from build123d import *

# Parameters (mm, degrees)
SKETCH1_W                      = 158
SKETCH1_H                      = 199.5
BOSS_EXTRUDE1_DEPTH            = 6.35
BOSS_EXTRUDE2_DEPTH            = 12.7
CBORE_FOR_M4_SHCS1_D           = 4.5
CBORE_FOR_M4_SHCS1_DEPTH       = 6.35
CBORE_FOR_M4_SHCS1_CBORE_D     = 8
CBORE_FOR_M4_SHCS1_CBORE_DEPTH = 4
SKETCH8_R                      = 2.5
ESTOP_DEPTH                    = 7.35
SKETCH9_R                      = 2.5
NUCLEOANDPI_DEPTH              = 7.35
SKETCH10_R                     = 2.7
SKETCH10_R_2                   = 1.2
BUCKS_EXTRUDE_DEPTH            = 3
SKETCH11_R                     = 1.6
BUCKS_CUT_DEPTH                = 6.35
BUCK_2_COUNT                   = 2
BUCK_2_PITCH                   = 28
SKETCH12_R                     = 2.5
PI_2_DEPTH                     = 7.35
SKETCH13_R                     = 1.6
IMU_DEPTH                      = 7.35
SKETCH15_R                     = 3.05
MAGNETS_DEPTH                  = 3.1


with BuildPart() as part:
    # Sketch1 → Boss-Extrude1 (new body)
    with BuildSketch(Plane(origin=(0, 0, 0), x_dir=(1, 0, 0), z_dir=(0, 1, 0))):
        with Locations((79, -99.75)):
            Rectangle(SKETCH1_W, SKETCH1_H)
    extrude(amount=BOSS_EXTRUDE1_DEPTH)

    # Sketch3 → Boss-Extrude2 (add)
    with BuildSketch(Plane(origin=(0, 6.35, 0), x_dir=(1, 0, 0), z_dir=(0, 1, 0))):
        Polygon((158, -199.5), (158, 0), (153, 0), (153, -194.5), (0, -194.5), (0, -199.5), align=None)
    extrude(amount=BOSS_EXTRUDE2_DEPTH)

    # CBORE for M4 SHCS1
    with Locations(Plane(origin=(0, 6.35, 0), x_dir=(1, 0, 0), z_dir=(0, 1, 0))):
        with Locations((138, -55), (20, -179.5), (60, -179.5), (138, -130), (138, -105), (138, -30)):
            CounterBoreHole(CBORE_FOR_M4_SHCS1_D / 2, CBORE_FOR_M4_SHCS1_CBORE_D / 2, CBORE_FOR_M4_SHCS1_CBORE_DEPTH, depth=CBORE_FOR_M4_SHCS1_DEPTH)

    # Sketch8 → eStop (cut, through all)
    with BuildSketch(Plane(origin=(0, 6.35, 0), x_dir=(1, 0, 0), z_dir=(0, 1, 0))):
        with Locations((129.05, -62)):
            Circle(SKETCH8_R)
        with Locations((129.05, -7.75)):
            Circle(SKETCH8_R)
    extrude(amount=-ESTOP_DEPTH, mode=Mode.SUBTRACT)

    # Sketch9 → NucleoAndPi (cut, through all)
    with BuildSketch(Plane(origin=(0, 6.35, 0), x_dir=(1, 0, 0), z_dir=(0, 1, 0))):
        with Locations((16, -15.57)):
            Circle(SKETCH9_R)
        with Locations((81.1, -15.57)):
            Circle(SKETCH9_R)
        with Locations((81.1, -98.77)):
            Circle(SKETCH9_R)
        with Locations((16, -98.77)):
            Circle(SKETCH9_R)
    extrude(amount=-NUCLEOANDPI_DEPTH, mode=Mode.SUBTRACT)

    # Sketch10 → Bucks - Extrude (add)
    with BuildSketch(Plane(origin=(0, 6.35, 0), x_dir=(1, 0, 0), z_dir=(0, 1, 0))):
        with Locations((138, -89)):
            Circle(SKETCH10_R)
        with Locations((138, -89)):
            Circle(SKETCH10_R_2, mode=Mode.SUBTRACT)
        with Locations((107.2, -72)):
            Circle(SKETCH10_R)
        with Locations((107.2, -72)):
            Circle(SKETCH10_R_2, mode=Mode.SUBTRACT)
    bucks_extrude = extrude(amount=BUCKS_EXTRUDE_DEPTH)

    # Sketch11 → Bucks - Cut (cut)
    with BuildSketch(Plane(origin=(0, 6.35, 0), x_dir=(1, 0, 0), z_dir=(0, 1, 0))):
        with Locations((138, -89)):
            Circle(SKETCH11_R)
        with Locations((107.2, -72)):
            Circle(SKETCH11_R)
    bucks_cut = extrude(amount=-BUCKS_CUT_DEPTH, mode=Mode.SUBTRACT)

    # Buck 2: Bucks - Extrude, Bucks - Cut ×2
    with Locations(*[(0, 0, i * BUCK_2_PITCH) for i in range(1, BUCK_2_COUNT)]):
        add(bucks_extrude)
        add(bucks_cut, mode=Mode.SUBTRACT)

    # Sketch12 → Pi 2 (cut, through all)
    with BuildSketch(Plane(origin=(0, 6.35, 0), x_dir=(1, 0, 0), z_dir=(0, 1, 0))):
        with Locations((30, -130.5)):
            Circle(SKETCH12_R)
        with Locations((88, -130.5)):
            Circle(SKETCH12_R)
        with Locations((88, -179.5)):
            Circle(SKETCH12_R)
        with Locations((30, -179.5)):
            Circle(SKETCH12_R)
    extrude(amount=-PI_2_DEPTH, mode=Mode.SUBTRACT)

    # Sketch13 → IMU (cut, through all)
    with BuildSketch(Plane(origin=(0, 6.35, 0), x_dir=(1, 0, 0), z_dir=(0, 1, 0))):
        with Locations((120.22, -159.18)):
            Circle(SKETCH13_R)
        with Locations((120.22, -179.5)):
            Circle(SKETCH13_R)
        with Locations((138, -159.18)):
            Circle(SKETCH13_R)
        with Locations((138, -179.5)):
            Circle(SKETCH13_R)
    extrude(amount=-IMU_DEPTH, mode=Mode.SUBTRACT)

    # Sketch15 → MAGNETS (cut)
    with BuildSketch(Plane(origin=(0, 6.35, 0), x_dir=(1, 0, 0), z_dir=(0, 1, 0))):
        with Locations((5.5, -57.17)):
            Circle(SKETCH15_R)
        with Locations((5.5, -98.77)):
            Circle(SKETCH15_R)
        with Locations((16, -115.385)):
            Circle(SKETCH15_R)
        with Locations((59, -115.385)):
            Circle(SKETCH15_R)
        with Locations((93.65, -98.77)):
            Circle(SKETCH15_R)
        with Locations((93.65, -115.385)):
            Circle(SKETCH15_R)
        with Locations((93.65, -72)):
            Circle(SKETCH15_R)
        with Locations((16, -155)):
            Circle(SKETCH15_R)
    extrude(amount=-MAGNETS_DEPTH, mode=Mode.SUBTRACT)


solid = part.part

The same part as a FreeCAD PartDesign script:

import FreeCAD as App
import Part
import Sketcher
Q = App.Units.Quantity

doc = App.newDocument("Part")
body = doc.addObject("PartDesign::Body", "Body")

# Sketch on XZ plane
sketch1 = doc.addObject("Sketcher::SketchObject", "Sketch")
body.addObject(sketch1)
sketch1.AttachmentSupport = (doc.XZ_Plane, [""])
sketch1.MapMode = "FlatFace"
sketch1.addGeometry(Part.LineSegment(App.Vector(0, 0, 0), App.Vector(0, 199.5, 0)), False)
sketch1.addGeometry(Part.LineSegment(App.Vector(0, 199.5, 0), App.Vector(158, 199.5, 0)), False)
sketch1.addGeometry(Part.LineSegment(App.Vector(158, 199.5, 0), App.Vector(158, 0, 0)), False)
sketch1.addGeometry(Part.LineSegment(App.Vector(158, 0, 0), App.Vector(0, 0, 0)), False)
sketch1.addConstraint(Sketcher.Constraint("Coincident", 0, 2, 1, 1))
sketch1.addConstraint(Sketcher.Constraint("Coincident", 1, 2, 2, 1))
sketch1.addConstraint(Sketcher.Constraint("Coincident", 2, 2, 3, 1))
sketch1.addConstraint(Sketcher.Constraint("Coincident", 3, 2, 0, 1))
sketch1.addConstraint(Sketcher.Constraint("Vertical", 0))
sketch1.addConstraint(Sketcher.Constraint("Horizontal", 1))
sketch1.addConstraint(Sketcher.Constraint("Vertical", 2))
sketch1.addConstraint(Sketcher.Constraint("Horizontal", 3))
sketch1.addConstraint(Sketcher.Constraint("Coincident", 3, 2, -1, 1))
sketch1.addConstraint(Sketcher.Constraint("DistanceX", 1, 1, 1, 2, Q("158 mm")))
sketch1.addConstraint(Sketcher.Constraint("DistanceY", 0, 1, 0, 2, Q("199.5 mm")))
pad1 = doc.addObject("PartDesign::Pad", "Pad")
body.addObject(pad1)
pad1.Profile = sketch1
pad1.Length = 6.35
pad1.Reversed = True

# Sketch on XZ plane
sketch2 = doc.addObject("Sketcher::SketchObject", "Sketch001")
body.addObject(sketch2)
sketch2.AttachmentSupport = (doc.XZ_Plane, [""])
sketch2.MapMode = "FlatFace"
sketch2.AttachmentOffset = App.Placement(App.Vector(0, 0, -6.35), App.Rotation())
sketch2.addGeometry(Part.LineSegment(App.Vector(158, 199.5, 0), App.Vector(158, 0, 0)), False)
sketch2.addGeometry(Part.LineSegment(App.Vector(158, 0, 0), App.Vector(153, 0, 0)), False)
sketch2.addGeometry(Part.LineSegment(App.Vector(153, 0, 0), App.Vector(153, 194.5, 0)), False)
sketch2.addGeometry(Part.LineSegment(App.Vector(153, 194.5, 0), App.Vector(0, 194.5, 0)), False)
sketch2.addGeometry(Part.LineSegment(App.Vector(0, 194.5, 0), App.Vector(0, 199.5, 0)), False)
sketch2.addGeometry(Part.LineSegment(App.Vector(0, 199.5, 0), App.Vector(158, 199.5, 0)), False)
sketch2.addConstraint(Sketcher.Constraint("Coincident", 0, 2, 1, 1))
sketch2.addConstraint(Sketcher.Constraint("Coincident", 1, 2, 2, 1))
sketch2.addConstraint(Sketcher.Constraint("Coincident", 2, 2, 3, 1))
sketch2.addConstraint(Sketcher.Constraint("Coincident", 3, 2, 4, 1))
sketch2.addConstraint(Sketcher.Constraint("Coincident", 4, 2, 5, 1))
sketch2.addConstraint(Sketcher.Constraint("Coincident", 5, 2, 0, 1))
sketch2.addConstraint(Sketcher.Constraint("Vertical", 0))
sketch2.addConstraint(Sketcher.Constraint("Horizontal", 1))
sketch2.addConstraint(Sketcher.Constraint("Vertical", 2))
sketch2.addConstraint(Sketcher.Constraint("Horizontal", 3))
sketch2.addConstraint(Sketcher.Constraint("Vertical", 4))
sketch2.addConstraint(Sketcher.Constraint("Horizontal", 5))
sketch2.addConstraint(Sketcher.Constraint("PointOnObject", 0, 2, -1))
sketch2.addConstraint(Sketcher.Constraint("PointOnObject", 3, 2, -2))
sketch2.addConstraint(Sketcher.Constraint("Equal", 1, 4))
sketch2.addConstraint(Sketcher.Constraint("DistanceX", 1, 2, 1, 1, Q("5 mm")))
sketch2.addConstraint(Sketcher.Constraint("DistanceX", 3, 2, 3, 1, Q("153 mm")))
sketch2.addConstraint(Sketcher.Constraint("DistanceY", 0, 2, 0, 1, Q("199.5 mm")))
pad2 = doc.addObject("PartDesign::Pad", "Pad001")
body.addObject(pad2)
pad2.Profile = sketch2
pad2.Length = 12.7
pad2.Reversed = True

# Sketch on XZ plane
sketch3 = doc.addObject("Sketcher::SketchObject", "Sketch002")
body.addObject(sketch3)
sketch3.AttachmentSupport = (doc.XZ_Plane, [""])
sketch3.MapMode = "FlatFace"
sketch3.AttachmentOffset = App.Placement(App.Vector(0, 0, -6.35), App.Rotation())
sketch3.addGeometry(Part.Circle(App.Vector(138, 55, 0), App.Vector(0, 0, 1), 2.25), False)
sketch3.addGeometry(Part.Circle(App.Vector(20, 179.5, 0), App.Vector(0, 0, 1), 2.25), False)
sketch3.addGeometry(Part.Circle(App.Vector(60, 179.5, 0), App.Vector(0, 0, 1), 2.25), False)
sketch3.addGeometry(Part.Circle(App.Vector(138, 130, 0), App.Vector(0, 0, 1), 2.25), False)
sketch3.addGeometry(Part.Circle(App.Vector(138, 105, 0), App.Vector(0, 0, 1), 2.25), False)
sketch3.addGeometry(Part.Circle(App.Vector(138, 30, 0), App.Vector(0, 0, 1), 2.25), False)
sketch3.addConstraint(Sketcher.Constraint("Equal", 0, 1))
sketch3.addConstraint(Sketcher.Constraint("Equal", 1, 2))
sketch3.addConstraint(Sketcher.Constraint("Equal", 2, 3))
sketch3.addConstraint(Sketcher.Constraint("Equal", 3, 4))
sketch3.addConstraint(Sketcher.Constraint("Equal", 4, 5))
sketch3.addConstraint(Sketcher.Constraint("Horizontal", 1, 3, 2, 3))
sketch3.addConstraint(Sketcher.Constraint("Vertical", 0, 3, 3, 3))
sketch3.addConstraint(Sketcher.Constraint("Vertical", 3, 3, 4, 3))
sketch3.addConstraint(Sketcher.Constraint("Vertical", 4, 3, 5, 3))
sketch3.addConstraint(Sketcher.Constraint("Diameter", 0, Q("4.5 mm")))
sketch3.addConstraint(Sketcher.Constraint("DistanceX", -1, 1, 0, 3, Q("138 mm")))
sketch3.addConstraint(Sketcher.Constraint("DistanceY", -1, 1, 0, 3, Q("55 mm")))
sketch3.addConstraint(Sketcher.Constraint("DistanceX", -1, 1, 1, 3, Q("20 mm")))
sketch3.addConstraint(Sketcher.Constraint("DistanceX", -1, 1, 2, 3, Q("60 mm")))
sketch3.addConstraint(Sketcher.Constraint("DistanceY", -1, 1, 3, 3, Q("130 mm")))
sketch3.addConstraint(Sketcher.Constraint("DistanceY", -1, 1, 4, 3, Q("105 mm")))
sketch3.addConstraint(Sketcher.Constraint("DistanceY", -1, 1, 5, 3, Q("30 mm")))
sketch3.addConstraint(Sketcher.Constraint("DistanceY", -1, 1, 1, 3, Q("179.5 mm")))
doc.recompute()
hole = doc.addObject("PartDesign::Hole", "Hole")
body.addObject(hole)
hole.Profile = sketch3
hole.ThreadType = "None"
hole.Diameter = 4.5
hole.DepthType = "Dimension"
hole.Depth = 6.35
hole.DrillPoint = "Flat"
hole.HoleCutType = "Counterbore"
hole.HoleCutDiameter = 8
hole.HoleCutDepth = 4
hole.Reversed = True

# Sketch on XZ plane
sketch4 = doc.addObject("Sketcher::SketchObject", "Sketch003")
body.addObject(sketch4)
sketch4.AttachmentSupport = (doc.XZ_Plane, [""])
sketch4.MapMode = "FlatFace"
sketch4.AttachmentOffset = App.Placement(App.Vector(0, 0, -6.35), App.Rotation())
sketch4.addGeometry(Part.Circle(App.Vector(129.05, 62, 0), App.Vector(0, 0, 1), 2.5), False)
sketch4.addGeometry(Part.Circle(App.Vector(129.05, 7.75, 0), App.Vector(0, 0, 1), 2.5), False)
sketch4.addConstraint(Sketcher.Constraint("Equal", 0, 1))
sketch4.addConstraint(Sketcher.Constraint("Vertical", 0, 3, 1, 3))
sketch4.addConstraint(Sketcher.Constraint("Diameter", 0, Q("5 mm")))
sketch4.addConstraint(Sketcher.Constraint("DistanceY", -1, 1, 0, 3, Q("62 mm")))
sketch4.addConstraint(Sketcher.Constraint("DistanceX", -1, 1, 0, 3, Q("129.05 mm")))
sketch4.addConstraint(Sketcher.Constraint("DistanceY", -1, 1, 1, 3, Q("7.75 mm")))
pocket1 = doc.addObject("PartDesign::Pocket", "Pocket")
body.addObject(pocket1)
pocket1.Profile = sketch4
pocket1.Type = "ThroughAll"
pocket1.Reversed = True

# Sketch on XZ plane
sketch5 = doc.addObject("Sketcher::SketchObject", "Sketch004")
body.addObject(sketch5)
sketch5.AttachmentSupport = (doc.XZ_Plane, [""])
sketch5.MapMode = "FlatFace"
sketch5.AttachmentOffset = App.Placement(App.Vector(0, 0, -6.35), App.Rotation())
sketch5.addGeometry(Part.Circle(App.Vector(16, 15.57, 0), App.Vector(0, 0, 1), 2.5), False)
sketch5.addGeometry(Part.Circle(App.Vector(81.1, 15.57, 0), App.Vector(0, 0, 1), 2.5), False)
sketch5.addGeometry(Part.Circle(App.Vector(81.1, 98.77, 0), App.Vector(0, 0, 1), 2.5), False)
sketch5.addGeometry(Part.Circle(App.Vector(16, 98.77, 0), App.Vector(0, 0, 1), 2.5), False)
sketch5.addConstraint(Sketcher.Constraint("Equal", 0, 1))
sketch5.addConstraint(Sketcher.Constraint("Equal", 1, 2))
sketch5.addConstraint(Sketcher.Constraint("Equal", 2, 3))
sketch5.addConstraint(Sketcher.Constraint("Horizontal", 0, 3, 1, 3))
sketch5.addConstraint(Sketcher.Constraint("Horizontal", 2, 3, 3, 3))
sketch5.addConstraint(Sketcher.Constraint("Vertical", 1, 3, 2, 3))
sketch5.addConstraint(Sketcher.Constraint("Vertical", 0, 3, 3, 3))
sketch5.addConstraint(Sketcher.Constraint("Diameter", 0, Q("5 mm")))
sketch5.addConstraint(Sketcher.Constraint("DistanceX", -1, 1, 0, 3, Q("16 mm")))
sketch5.addConstraint(Sketcher.Constraint("DistanceX", -1, 1, 1, 3, Q("81.1 mm")))
sketch5.addConstraint(Sketcher.Constraint("DistanceY", 1, 3, 2, 3, Q("83.2 mm")))
sketch5.addConstraint(Sketcher.Constraint("DistanceY", -1, 1, 0, 3, Q("15.57 mm")))
pocket2 = doc.addObject("PartDesign::Pocket", "Pocket001")
body.addObject(pocket2)
pocket2.Profile = sketch5
pocket2.Type = "ThroughAll"
pocket2.Reversed = True

# Sketch on XZ plane
sketch6 = doc.addObject("Sketcher::SketchObject", "Sketch005")
body.addObject(sketch6)
sketch6.AttachmentSupport = (doc.XZ_Plane, [""])
sketch6.MapMode = "FlatFace"
sketch6.AttachmentOffset = App.Placement(App.Vector(0, 0, -6.35), App.Rotation())
sketch6.addGeometry(Part.Circle(App.Vector(138, 89, 0), App.Vector(0, 0, 1), 2.7), False)
sketch6.addGeometry(Part.Circle(App.Vector(138, 89, 0), App.Vector(0, 0, 1), 1.2), False)
sketch6.addGeometry(Part.Circle(App.Vector(107.2, 72, 0), App.Vector(0, 0, 1), 2.7), False)
sketch6.addGeometry(Part.Circle(App.Vector(107.2, 72, 0), App.Vector(0, 0, 1), 1.2), False)
sketch6.addConstraint(Sketcher.Constraint("Coincident", 1, 3, 0, 3))
sketch6.addConstraint(Sketcher.Constraint("Coincident", 3, 3, 2, 3))
sketch6.addConstraint(Sketcher.Constraint("Equal", 0, 2))
sketch6.addConstraint(Sketcher.Constraint("Equal", 1, 3))
sketch6.addConstraint(Sketcher.Constraint("Diameter", 0, Q("5.4 mm")))
sketch6.addConstraint(Sketcher.Constraint("Diameter", 1, Q("2.4 mm")))
sketch6.addConstraint(Sketcher.Constraint("DistanceX", -1, 1, 0, 3, Q("138 mm")))
sketch6.addConstraint(Sketcher.Constraint("DistanceY", -1, 1, 0, 3, Q("89 mm")))
sketch6.addConstraint(Sketcher.Constraint("DistanceY", -1, 1, 2, 3, Q("72 mm")))
sketch6.addConstraint(Sketcher.Constraint("DistanceX", -1, 1, 2, 3, Q("107.2 mm")))
pad3 = doc.addObject("PartDesign::Pad", "Pad002")
body.addObject(pad3)
pad3.Profile = sketch6
pad3.Length = 3
pad3.Reversed = True

# Sketch on XZ plane
sketch7 = doc.addObject("Sketcher::SketchObject", "Sketch006")
body.addObject(sketch7)
sketch7.AttachmentSupport = (doc.XZ_Plane, [""])
sketch7.MapMode = "FlatFace"
sketch7.AttachmentOffset = App.Placement(App.Vector(0, 0, -6.35), App.Rotation())
sketch7.addGeometry(Part.Circle(App.Vector(138, 89, 0), App.Vector(0, 0, 1), 1.6), False)
sketch7.addGeometry(Part.Circle(App.Vector(107.2, 72, 0), App.Vector(0, 0, 1), 1.6), False)
sketch7.addConstraint(Sketcher.Constraint("Equal", 0, 1))
sketch7.addConstraint(Sketcher.Constraint("Diameter", 0, Q("3.2 mm")))
sketch7.addConstraint(Sketcher.Constraint("DistanceX", -1, 1, 0, 3, Q("138 mm")))
sketch7.addConstraint(Sketcher.Constraint("DistanceY", -1, 1, 0, 3, Q("89 mm")))
sketch7.addConstraint(Sketcher.Constraint("DistanceY", -1, 1, 1, 3, Q("72 mm")))
sketch7.addConstraint(Sketcher.Constraint("DistanceX", -1, 1, 1, 3, Q("107.2 mm")))
pocket3 = doc.addObject("PartDesign::Pocket", "Pocket002")
body.addObject(pocket3)
pocket3.Profile = sketch7
pocket3.Length = 6.35
pocket3.Reversed = True
doc.recompute()

linearpattern = doc.addObject("PartDesign::LinearPattern", "LinearPattern")
body.addObject(linearpattern)
linearpattern.Originals = [pad3, pocket3]
linearpattern.Direction = (doc.Z_Axis, [""])
linearpattern.Mode = "offset"
linearpattern.Offset = 28
linearpattern.Occurrences = 2
body.Tip = linearpattern

# Sketch on XZ plane
sketch8 = doc.addObject("Sketcher::SketchObject", "Sketch007")
body.addObject(sketch8)
sketch8.AttachmentSupport = (doc.XZ_Plane, [""])
sketch8.MapMode = "FlatFace"
sketch8.AttachmentOffset = App.Placement(App.Vector(0, 0, -6.35), App.Rotation())
sketch8.addGeometry(Part.Circle(App.Vector(30, 130.5, 0), App.Vector(0, 0, 1), 2.5), False)
sketch8.addGeometry(Part.Circle(App.Vector(88, 130.5, 0), App.Vector(0, 0, 1), 2.5), False)
sketch8.addGeometry(Part.Circle(App.Vector(88, 179.5, 0), App.Vector(0, 0, 1), 2.5), False)
sketch8.addGeometry(Part.Circle(App.Vector(30, 179.5, 0), App.Vector(0, 0, 1), 2.5), False)
sketch8.addConstraint(Sketcher.Constraint("Equal", 0, 1))
sketch8.addConstraint(Sketcher.Constraint("Equal", 1, 2))
sketch8.addConstraint(Sketcher.Constraint("Equal", 2, 3))
sketch8.addConstraint(Sketcher.Constraint("Horizontal", 0, 3, 1, 3))
sketch8.addConstraint(Sketcher.Constraint("Horizontal", 2, 3, 3, 3))
sketch8.addConstraint(Sketcher.Constraint("Vertical", 1, 3, 2, 3))
sketch8.addConstraint(Sketcher.Constraint("Vertical", 0, 3, 3, 3))
sketch8.addConstraint(Sketcher.Constraint("Diameter", 0, Q("5 mm")))
sketch8.addConstraint(Sketcher.Constraint("DistanceX", -1, 1, 0, 3, Q("30 mm")))
sketch8.addConstraint(Sketcher.Constraint("DistanceX", -1, 1, 1, 3, Q("88 mm")))
sketch8.addConstraint(Sketcher.Constraint("DistanceY", 1, 3, 2, 3, Q("49 mm")))
sketch8.addConstraint(Sketcher.Constraint("DistanceY", -1, 1, 0, 3, Q("130.5 mm")))
pocket4 = doc.addObject("PartDesign::Pocket", "Pocket003")
body.addObject(pocket4)
pocket4.Profile = sketch8
pocket4.Type = "ThroughAll"
pocket4.Reversed = True

# Sketch on XZ plane
sketch9 = doc.addObject("Sketcher::SketchObject", "Sketch008")
body.addObject(sketch9)
sketch9.AttachmentSupport = (doc.XZ_Plane, [""])
sketch9.MapMode = "FlatFace"
sketch9.AttachmentOffset = App.Placement(App.Vector(0, 0, -6.35), App.Rotation())
sketch9.addGeometry(Part.Circle(App.Vector(120.22, 159.18, 0), App.Vector(0, 0, 1), 1.6), False)
sketch9.addGeometry(Part.Circle(App.Vector(120.22, 179.5, 0), App.Vector(0, 0, 1), 1.6), False)
sketch9.addGeometry(Part.Circle(App.Vector(138, 159.18, 0), App.Vector(0, 0, 1), 1.6), False)
sketch9.addGeometry(Part.Circle(App.Vector(138, 179.5, 0), App.Vector(0, 0, 1), 1.6), False)
sketch9.addConstraint(Sketcher.Constraint("Equal", 0, 1))
sketch9.addConstraint(Sketcher.Constraint("Equal", 1, 2))
sketch9.addConstraint(Sketcher.Constraint("Equal", 2, 3))
sketch9.addConstraint(Sketcher.Constraint("Horizontal", 0, 3, 2, 3))
sketch9.addConstraint(Sketcher.Constraint("Horizontal", 1, 3, 3, 3))
sketch9.addConstraint(Sketcher.Constraint("Vertical", 0, 3, 1, 3))
sketch9.addConstraint(Sketcher.Constraint("Vertical", 2, 3, 3, 3))
sketch9.addConstraint(Sketcher.Constraint("Diameter", 0, Q("3.2 mm")))
sketch9.addConstraint(Sketcher.Constraint("DistanceX", -1, 1, 2, 3, Q("138 mm")))
sketch9.addConstraint(Sketcher.Constraint("DistanceY", -1, 1, 1, 3, Q("179.5 mm")))
sketch9.addConstraint(Sketcher.Constraint("DistanceX", -1, 1, 0, 3, Q("120.22 mm")))
sketch9.addConstraint(Sketcher.Constraint("DistanceY", -1, 1, 0, 3, Q("159.18 mm")))
pocket5 = doc.addObject("PartDesign::Pocket", "Pocket004")
body.addObject(pocket5)
pocket5.Profile = sketch9
pocket5.Type = "ThroughAll"
pocket5.Reversed = True

# Sketch on XZ plane
sketch10 = doc.addObject("Sketcher::SketchObject", "Sketch009")
body.addObject(sketch10)
sketch10.AttachmentSupport = (doc.XZ_Plane, [""])
sketch10.MapMode = "FlatFace"
sketch10.AttachmentOffset = App.Placement(App.Vector(0, 0, -6.35), App.Rotation())
sketch10.addGeometry(Part.Circle(App.Vector(5.5, 57.17, 0), App.Vector(0, 0, 1), 3.05), False)
sketch10.addGeometry(Part.Circle(App.Vector(5.5, 98.77, 0), App.Vector(0, 0, 1), 3.05), False)
sketch10.addGeometry(Part.Circle(App.Vector(16, 115.385, 0), App.Vector(0, 0, 1), 3.05), False)
sketch10.addGeometry(Part.Circle(App.Vector(59, 115.385, 0), App.Vector(0, 0, 1), 3.05), False)
sketch10.addGeometry(Part.Circle(App.Vector(93.65, 98.77, 0), App.Vector(0, 0, 1), 3.05), False)
sketch10.addGeometry(Part.Circle(App.Vector(93.65, 115.385, 0), App.Vector(0, 0, 1), 3.05), False)
sketch10.addGeometry(Part.Circle(App.Vector(93.65, 72, 0), App.Vector(0, 0, 1), 3.05), False)
sketch10.addGeometry(Part.Circle(App.Vector(16, 155, 0), App.Vector(0, 0, 1), 3.05), False)
sketch10.addConstraint(Sketcher.Constraint("Equal", 0, 1))
sketch10.addConstraint(Sketcher.Constraint("Equal", 1, 2))
sketch10.addConstraint(Sketcher.Constraint("Equal", 2, 3))
sketch10.addConstraint(Sketcher.Constraint("Equal", 3, 4))
sketch10.addConstraint(Sketcher.Constraint("Equal", 4, 5))
sketch10.addConstraint(Sketcher.Constraint("Equal", 5, 6))
sketch10.addConstraint(Sketcher.Constraint("Equal", 6, 7))
sketch10.addConstraint(Sketcher.Constraint("Horizontal", 2, 3, 3, 3))
sketch10.addConstraint(Sketcher.Constraint("Horizontal", 1, 3, 4, 3))
sketch10.addConstraint(Sketcher.Constraint("Horizontal", 3, 3, 5, 3))
sketch10.addConstraint(Sketcher.Constraint("Vertical", 0, 3, 1, 3))
sketch10.addConstraint(Sketcher.Constraint("Vertical", 4, 3, 5, 3))
sketch10.addConstraint(Sketcher.Constraint("Vertical", 5, 3, 6, 3))
sketch10.addConstraint(Sketcher.Constraint("Vertical", 2, 3, 7, 3))
sketch10.addConstraint(Sketcher.Constraint("Diameter", 0, Q("6.1 mm")))
sketch10.addConstraint(Sketcher.Constraint("DistanceX", -1, 1, 2, 3, Q("16 mm")))
sketch10.addConstraint(Sketcher.Constraint("DistanceX", -1, 1, 3, 3, Q("59 mm")))
sketch10.addConstraint(Sketcher.Constraint("DistanceY", -1, 1, 6, 3, Q("72 mm")))
sketch10.addConstraint(Sketcher.Constraint("DistanceY", -1, 1, 7, 3, Q("155 mm")))
sketch10.addConstraint(Sketcher.Constraint("DistanceX", -1, 1, 0, 3, Q("5.5 mm")))
sketch10.addConstraint(Sketcher.Constraint("DistanceY", 0, 3, 1, 3, Q("41.6 mm")))
sketch10.addConstraint(Sketcher.Constraint("DistanceY", -1, 1, 0, 3, Q("57.17 mm")))
sketch10.addConstraint(Sketcher.Constraint("DistanceX", -1, 1, 4, 3, Q("93.65 mm")))
sketch10.addConstraint(Sketcher.Constraint("DistanceY", -1, 1, 2, 3, Q("115.385 mm")))
pocket6 = doc.addObject("PartDesign::Pocket", "Pocket005")
body.addObject(pocket6)
pocket6.Profile = sketch10
pocket6.Length = 3.1
pocket6.Reversed = True

doc.recompute()
